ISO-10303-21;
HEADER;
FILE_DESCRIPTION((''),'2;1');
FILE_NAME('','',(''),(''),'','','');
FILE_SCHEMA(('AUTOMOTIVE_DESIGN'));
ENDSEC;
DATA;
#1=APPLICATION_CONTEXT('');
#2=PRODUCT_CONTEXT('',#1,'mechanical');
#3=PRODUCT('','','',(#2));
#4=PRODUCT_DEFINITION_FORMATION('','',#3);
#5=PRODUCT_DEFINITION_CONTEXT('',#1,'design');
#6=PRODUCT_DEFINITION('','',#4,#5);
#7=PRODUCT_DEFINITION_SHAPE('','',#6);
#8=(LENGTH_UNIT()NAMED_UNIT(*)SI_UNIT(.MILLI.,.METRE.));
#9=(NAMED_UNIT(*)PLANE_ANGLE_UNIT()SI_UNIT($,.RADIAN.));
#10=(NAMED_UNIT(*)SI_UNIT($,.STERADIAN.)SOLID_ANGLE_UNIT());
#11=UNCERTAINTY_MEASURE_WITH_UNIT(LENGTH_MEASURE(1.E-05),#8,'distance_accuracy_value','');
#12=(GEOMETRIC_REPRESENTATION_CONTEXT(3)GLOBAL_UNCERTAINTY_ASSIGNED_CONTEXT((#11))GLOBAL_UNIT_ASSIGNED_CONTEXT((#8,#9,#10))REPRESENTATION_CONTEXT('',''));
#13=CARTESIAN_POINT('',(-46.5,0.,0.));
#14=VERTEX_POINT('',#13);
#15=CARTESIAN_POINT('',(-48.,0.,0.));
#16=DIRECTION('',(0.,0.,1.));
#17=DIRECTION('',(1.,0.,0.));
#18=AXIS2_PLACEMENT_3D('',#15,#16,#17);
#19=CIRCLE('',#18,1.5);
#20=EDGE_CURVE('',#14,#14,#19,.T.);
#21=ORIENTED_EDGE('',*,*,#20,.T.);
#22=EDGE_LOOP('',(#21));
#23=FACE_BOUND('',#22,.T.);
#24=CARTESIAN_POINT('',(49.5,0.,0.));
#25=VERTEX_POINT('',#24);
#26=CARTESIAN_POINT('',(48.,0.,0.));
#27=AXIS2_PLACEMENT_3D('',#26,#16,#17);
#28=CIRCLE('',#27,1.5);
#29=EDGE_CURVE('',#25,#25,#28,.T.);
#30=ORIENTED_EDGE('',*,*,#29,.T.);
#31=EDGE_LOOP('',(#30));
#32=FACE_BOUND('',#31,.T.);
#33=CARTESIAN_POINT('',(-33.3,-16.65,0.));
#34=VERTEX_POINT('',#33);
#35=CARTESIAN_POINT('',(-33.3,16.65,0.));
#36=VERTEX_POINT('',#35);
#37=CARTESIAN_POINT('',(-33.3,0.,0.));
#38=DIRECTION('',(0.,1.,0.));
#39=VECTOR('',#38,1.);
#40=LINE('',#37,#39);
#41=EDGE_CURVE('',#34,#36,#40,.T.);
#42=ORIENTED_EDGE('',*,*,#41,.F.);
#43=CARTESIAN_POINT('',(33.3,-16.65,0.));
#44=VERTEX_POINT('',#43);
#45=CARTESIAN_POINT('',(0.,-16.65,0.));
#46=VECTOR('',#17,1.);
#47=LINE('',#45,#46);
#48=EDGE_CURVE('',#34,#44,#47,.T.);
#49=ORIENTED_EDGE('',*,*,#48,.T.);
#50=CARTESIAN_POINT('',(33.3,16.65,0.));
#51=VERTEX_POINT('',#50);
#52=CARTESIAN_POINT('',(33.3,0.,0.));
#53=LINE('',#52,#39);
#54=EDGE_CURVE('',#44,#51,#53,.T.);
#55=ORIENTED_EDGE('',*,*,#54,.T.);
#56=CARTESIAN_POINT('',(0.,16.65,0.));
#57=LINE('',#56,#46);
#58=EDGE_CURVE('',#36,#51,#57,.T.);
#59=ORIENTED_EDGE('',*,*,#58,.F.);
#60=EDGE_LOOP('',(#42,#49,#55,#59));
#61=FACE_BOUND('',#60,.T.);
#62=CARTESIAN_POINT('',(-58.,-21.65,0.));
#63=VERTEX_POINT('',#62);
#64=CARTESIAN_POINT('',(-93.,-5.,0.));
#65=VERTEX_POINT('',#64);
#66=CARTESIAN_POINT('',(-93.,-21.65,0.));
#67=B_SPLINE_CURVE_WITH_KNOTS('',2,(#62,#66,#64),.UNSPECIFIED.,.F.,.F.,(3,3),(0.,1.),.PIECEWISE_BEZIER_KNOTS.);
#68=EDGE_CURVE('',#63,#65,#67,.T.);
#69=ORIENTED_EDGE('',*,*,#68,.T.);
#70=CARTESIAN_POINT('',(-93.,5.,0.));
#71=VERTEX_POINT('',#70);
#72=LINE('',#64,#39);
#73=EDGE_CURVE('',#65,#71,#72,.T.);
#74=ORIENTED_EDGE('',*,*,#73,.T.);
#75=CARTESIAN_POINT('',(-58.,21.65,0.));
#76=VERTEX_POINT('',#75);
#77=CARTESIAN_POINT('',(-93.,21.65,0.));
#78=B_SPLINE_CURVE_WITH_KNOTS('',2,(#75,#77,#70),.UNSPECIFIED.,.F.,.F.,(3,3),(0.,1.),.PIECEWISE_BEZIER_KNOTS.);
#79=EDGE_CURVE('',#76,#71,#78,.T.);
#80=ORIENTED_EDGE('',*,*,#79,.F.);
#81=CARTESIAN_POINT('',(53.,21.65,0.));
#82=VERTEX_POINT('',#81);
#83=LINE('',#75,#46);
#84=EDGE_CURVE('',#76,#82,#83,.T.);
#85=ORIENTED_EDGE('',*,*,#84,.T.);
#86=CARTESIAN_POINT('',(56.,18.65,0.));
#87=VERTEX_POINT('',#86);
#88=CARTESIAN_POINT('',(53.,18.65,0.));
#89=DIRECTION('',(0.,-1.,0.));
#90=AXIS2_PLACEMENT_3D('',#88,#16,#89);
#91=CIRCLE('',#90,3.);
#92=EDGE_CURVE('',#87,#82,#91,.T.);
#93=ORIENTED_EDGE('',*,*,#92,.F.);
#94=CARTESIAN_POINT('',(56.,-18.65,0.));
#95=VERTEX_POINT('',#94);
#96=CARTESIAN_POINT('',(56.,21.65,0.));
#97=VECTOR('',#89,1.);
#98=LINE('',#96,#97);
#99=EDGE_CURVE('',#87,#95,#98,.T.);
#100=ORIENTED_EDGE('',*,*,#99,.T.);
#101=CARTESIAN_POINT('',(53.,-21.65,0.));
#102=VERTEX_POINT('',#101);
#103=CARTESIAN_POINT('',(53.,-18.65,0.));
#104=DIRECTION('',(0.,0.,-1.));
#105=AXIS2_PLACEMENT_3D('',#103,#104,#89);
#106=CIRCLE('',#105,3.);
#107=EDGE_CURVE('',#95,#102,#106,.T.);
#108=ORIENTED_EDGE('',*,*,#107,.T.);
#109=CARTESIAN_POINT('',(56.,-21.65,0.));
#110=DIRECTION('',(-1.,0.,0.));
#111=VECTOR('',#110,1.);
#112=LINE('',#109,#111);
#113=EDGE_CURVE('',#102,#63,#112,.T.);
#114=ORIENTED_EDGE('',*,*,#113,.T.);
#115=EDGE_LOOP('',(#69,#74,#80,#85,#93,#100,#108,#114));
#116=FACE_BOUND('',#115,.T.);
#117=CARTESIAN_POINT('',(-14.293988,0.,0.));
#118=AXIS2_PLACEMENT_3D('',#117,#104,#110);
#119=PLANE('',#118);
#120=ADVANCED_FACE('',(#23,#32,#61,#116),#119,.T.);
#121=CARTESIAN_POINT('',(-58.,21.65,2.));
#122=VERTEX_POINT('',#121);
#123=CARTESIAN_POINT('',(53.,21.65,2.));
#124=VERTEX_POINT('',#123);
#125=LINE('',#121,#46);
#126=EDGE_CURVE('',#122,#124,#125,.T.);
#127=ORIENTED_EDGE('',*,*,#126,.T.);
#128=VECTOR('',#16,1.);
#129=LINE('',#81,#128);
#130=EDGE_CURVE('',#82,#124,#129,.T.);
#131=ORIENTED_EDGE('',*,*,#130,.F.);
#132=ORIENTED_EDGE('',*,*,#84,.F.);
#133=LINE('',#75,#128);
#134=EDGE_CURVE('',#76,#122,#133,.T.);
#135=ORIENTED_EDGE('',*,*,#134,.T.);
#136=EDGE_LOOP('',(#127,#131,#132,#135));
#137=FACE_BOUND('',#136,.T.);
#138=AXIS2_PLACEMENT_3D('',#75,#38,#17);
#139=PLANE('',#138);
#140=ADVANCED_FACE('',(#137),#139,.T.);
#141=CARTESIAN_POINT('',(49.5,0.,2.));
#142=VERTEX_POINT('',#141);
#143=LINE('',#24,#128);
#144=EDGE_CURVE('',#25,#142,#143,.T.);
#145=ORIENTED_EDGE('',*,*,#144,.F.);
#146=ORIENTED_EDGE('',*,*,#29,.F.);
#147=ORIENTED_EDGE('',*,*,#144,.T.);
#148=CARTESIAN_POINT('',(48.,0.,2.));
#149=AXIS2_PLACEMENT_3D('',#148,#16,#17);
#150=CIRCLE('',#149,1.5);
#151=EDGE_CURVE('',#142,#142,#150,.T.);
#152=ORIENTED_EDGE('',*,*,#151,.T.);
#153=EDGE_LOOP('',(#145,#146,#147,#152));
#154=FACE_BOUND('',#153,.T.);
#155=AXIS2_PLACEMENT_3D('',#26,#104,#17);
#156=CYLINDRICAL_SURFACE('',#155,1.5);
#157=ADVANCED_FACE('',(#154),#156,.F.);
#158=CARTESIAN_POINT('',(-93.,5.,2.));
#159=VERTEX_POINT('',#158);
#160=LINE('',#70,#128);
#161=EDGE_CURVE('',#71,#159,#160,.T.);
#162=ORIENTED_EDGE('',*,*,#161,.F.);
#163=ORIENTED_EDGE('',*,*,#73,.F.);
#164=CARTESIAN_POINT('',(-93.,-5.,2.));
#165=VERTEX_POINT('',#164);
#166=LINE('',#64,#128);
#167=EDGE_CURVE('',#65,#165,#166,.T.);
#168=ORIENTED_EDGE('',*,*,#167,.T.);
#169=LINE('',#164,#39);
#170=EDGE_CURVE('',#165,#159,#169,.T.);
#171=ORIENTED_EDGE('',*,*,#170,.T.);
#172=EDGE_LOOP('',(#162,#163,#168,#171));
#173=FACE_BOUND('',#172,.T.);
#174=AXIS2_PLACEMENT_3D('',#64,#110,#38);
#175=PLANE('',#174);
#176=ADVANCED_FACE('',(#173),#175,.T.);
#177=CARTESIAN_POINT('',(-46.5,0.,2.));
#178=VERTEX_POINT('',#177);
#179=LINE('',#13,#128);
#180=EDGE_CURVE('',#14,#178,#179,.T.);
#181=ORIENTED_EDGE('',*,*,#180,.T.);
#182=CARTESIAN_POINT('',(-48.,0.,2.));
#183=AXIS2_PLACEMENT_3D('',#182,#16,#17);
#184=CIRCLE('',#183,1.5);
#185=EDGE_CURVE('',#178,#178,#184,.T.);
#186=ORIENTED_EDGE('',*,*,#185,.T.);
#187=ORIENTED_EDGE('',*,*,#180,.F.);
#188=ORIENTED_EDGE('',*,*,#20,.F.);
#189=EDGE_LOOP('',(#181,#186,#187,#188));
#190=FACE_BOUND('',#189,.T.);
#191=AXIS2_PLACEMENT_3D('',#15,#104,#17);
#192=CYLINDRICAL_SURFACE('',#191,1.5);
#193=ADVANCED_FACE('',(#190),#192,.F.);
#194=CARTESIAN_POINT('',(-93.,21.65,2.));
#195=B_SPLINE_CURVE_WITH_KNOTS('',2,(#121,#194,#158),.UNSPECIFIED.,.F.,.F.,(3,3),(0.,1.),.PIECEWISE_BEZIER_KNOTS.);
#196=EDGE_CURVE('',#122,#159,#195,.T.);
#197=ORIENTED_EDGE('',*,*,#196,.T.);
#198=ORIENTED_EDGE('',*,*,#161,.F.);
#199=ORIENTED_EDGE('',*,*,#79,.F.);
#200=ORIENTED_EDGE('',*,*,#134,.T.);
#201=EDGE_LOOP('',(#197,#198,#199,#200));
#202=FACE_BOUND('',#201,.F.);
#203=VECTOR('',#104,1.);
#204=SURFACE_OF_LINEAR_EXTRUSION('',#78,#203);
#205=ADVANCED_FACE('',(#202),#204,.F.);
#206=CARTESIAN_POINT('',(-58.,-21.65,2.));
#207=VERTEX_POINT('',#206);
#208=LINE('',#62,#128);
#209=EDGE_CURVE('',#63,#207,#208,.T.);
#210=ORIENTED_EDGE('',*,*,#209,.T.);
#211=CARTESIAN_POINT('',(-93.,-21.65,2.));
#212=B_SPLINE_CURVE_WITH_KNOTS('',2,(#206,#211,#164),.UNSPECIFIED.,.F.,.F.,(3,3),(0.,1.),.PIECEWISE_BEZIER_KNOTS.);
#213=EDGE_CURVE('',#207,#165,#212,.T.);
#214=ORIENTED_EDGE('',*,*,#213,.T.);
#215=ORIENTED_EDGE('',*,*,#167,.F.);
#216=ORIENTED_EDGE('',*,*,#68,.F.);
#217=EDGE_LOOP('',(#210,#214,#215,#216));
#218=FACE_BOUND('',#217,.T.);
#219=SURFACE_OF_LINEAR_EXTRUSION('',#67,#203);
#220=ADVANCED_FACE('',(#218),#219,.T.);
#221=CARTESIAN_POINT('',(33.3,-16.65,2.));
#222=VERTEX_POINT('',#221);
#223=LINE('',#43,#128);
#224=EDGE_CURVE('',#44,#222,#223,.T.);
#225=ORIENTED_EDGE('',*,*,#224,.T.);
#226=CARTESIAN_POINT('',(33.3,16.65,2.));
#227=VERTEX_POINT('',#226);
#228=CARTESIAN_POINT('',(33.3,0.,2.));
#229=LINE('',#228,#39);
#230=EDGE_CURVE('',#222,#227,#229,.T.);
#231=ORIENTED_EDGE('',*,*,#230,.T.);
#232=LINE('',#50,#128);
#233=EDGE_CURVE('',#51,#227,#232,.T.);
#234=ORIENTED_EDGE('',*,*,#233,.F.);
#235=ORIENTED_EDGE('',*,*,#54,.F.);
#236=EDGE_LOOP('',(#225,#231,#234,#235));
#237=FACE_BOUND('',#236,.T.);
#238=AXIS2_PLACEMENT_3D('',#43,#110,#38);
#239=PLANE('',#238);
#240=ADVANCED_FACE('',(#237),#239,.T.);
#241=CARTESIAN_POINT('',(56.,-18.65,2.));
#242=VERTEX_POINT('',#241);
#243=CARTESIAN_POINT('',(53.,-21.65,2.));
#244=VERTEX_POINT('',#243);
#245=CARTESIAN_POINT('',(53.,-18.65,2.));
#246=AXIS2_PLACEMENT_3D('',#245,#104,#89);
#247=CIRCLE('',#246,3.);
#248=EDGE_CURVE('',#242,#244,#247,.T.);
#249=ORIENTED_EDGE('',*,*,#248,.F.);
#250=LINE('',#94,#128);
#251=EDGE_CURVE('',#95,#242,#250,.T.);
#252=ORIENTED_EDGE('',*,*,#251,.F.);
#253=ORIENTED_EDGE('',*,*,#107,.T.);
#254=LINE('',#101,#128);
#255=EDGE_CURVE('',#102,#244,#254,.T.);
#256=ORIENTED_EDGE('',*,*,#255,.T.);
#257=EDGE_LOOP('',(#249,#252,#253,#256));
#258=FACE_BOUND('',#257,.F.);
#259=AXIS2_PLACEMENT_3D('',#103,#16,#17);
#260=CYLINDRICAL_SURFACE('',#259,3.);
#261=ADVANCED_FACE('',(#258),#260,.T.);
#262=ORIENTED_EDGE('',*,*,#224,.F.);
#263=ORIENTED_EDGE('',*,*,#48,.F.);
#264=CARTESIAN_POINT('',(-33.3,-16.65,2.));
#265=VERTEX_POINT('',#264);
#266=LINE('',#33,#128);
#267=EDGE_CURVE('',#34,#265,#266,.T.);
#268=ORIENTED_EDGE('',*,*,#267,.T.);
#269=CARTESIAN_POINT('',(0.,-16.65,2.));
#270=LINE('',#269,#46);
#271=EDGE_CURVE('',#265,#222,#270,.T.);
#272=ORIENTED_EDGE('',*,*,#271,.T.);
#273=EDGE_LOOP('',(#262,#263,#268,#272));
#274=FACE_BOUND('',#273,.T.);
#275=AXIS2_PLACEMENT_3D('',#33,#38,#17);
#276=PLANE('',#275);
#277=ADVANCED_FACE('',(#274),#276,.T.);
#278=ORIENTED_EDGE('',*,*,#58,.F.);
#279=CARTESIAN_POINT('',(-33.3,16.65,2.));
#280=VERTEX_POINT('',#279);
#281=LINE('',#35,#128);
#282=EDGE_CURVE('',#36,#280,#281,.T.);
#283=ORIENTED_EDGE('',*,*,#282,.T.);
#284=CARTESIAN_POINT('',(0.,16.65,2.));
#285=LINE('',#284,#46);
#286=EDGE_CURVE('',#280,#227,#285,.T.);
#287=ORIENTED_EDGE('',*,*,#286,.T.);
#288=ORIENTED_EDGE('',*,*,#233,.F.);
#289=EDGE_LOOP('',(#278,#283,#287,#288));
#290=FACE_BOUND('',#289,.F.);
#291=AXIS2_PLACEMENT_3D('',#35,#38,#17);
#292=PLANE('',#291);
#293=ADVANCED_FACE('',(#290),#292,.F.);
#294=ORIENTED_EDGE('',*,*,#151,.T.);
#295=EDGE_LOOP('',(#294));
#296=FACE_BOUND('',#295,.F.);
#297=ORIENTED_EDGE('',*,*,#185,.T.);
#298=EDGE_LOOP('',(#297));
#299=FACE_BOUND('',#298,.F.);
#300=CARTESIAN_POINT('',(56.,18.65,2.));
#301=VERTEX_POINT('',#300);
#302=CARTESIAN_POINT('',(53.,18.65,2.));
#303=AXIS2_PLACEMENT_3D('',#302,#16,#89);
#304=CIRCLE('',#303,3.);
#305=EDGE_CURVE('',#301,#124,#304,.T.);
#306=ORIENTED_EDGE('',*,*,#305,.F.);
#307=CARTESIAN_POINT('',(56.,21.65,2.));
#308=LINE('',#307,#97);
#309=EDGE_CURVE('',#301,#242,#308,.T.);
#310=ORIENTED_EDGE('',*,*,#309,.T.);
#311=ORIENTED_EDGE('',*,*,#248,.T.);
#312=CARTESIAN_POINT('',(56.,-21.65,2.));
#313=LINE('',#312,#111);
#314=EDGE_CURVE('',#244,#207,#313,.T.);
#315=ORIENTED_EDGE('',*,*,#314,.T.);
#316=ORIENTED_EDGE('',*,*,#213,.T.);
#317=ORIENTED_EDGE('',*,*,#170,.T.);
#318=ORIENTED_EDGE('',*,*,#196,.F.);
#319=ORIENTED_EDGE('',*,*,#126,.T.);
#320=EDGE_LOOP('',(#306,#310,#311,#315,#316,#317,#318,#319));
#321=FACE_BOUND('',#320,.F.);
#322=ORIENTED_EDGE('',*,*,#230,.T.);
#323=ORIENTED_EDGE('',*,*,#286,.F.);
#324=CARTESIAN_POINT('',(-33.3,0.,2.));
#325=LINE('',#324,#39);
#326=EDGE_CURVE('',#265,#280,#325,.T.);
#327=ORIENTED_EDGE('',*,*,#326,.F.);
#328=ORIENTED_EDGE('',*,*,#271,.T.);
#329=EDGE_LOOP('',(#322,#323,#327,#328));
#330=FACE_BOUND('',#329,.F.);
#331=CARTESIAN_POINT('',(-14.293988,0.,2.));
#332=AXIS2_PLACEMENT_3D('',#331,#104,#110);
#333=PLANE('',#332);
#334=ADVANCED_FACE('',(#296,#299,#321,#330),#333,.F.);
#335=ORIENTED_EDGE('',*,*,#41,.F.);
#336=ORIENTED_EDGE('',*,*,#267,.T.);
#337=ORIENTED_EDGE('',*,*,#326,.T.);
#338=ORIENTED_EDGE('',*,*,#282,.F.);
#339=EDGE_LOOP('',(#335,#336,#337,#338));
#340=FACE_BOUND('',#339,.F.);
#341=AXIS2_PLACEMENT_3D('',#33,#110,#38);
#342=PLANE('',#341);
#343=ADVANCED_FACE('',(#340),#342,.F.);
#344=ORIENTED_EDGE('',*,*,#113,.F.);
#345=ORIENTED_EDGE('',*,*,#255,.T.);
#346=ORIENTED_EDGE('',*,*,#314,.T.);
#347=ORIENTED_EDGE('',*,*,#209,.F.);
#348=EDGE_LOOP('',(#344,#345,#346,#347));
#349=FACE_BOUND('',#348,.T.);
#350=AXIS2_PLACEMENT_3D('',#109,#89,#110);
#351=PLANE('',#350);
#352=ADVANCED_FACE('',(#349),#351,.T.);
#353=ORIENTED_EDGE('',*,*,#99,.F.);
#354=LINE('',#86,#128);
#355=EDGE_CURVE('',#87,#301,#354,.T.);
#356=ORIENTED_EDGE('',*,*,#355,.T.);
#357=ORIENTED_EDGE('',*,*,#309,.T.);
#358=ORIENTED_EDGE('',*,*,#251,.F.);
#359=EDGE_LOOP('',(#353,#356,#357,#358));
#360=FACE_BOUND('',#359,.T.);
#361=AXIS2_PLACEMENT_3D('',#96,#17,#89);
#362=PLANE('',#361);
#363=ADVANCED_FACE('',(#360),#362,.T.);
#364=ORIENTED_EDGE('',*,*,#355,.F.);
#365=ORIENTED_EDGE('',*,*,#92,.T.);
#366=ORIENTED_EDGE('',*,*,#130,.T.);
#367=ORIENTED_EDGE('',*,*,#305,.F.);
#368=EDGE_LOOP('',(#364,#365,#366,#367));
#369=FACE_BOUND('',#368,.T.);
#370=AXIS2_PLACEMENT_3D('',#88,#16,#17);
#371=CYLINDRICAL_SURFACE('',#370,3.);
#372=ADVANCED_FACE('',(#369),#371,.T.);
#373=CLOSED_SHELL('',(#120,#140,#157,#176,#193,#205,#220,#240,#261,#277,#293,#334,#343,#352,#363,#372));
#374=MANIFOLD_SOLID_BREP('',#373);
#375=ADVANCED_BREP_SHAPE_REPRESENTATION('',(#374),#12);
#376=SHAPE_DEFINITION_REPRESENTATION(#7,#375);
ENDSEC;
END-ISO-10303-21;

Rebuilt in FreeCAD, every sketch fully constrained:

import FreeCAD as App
import Part
import Sketcher

V = App.Vector
Q = App.Units.Quantity


def edges_at(feature, points):
    """Names of the edges that pass closest to the given points."""
    edges = feature.Shape.Edges
    near = lambda p: min(range(len(edges)), key=lambda i: edges[i].distToShape(Part.Vertex(*p))[0])
    return sorted({f"Edge{near(p) + 1}" for p in points})


def add_polygon(sketch, points):
    """Adds a closed chain of lines whose ends are joined by coincident constraints."""
    first, n = sketch.GeometryCount, len(points)
    for a, b in zip(points, points[1:] + points[:1]):
        sketch.addGeometry(Part.LineSegment(App.Vector(*a, 0), App.Vector(*b, 0)), False)
    for i in range(n):
        sketch.addConstraint(Sketcher.Constraint("Coincident", first + i, 2, first + (i + 1) % n, 1))

doc = App.newDocument("Part")
body = doc.addObject("PartDesign::Body", "Body")

sketch1 = body.newObject("Sketcher::SketchObject", "Sketch")
sketch1.AttachmentSupport = (doc.getObject("XY_Plane"), [""])
sketch1.MapMode = "FlatFace"
sketch1.addGeometry(Part.LineSegment(V(56, 21.65, 0), V(-58, 21.65, 0)), False)
sketch1.addGeometry(Part.BSplineCurve([V(-58, 21.65, 0), V(-93, 21.65, 0), V(-93, 5, 0)], [3, 3], [0, 1], False, 2, [1, 1, 1], False), False)
sketch1.addGeometry(Part.LineSegment(V(-93, 5, 0), V(-93, -5, 0)), False)
sketch1.addGeometry(Part.BSplineCurve([V(-58, -21.65, 0), V(-93, -21.65, 0), V(-93, -5, 0)], [3, 3], [0, 1], False, 2, [1, 1, 1], False), False)
sketch1.addGeometry(Part.LineSegment(V(-58, -21.65, 0), V(56, -21.65, 0)), False)
sketch1.addGeometry(Part.LineSegment(V(56, -21.65, 0), V(56, 21.65, 0)), False)
sketch1.addGeometry(Part.Circle(V(48, 0, 0), V(0, 0, 1), 1.5), False)
add_polygon(sketch1, [(-33.3, -16.65), (-33.3, 16.65), (33.3, 16.65), (33.3, -16.65)])
sketch1.addGeometry(Part.Circle(V(-48, 0, 0), V(0, 0, 1), 1.5), False)
sketch1.addConstraint(Sketcher.Constraint("Block", 1))
sketch1.addConstraint(Sketcher.Constraint("Block", 3))
sketch1.addConstraint(Sketcher.Constraint("Coincident", 0, 2, 1, 1))
sketch1.addConstraint(Sketcher.Constraint("Coincident", 1, 2, 2, 1))
sketch1.addConstraint(Sketcher.Constraint("Coincident", 2, 2, 3, 2))
sketch1.addConstraint(Sketcher.Constraint("Coincident", 3, 1, 4, 1))
sketch1.addConstraint(Sketcher.Constraint("Coincident", 4, 2, 5, 1))
sketch1.addConstraint(Sketcher.Constraint("Coincident", 5, 2, 0, 1))
sketch1.addConstraint(Sketcher.Constraint("Horizontal", 0))
sketch1.addConstraint(Sketcher.Constraint("Horizontal", 4))
sketch1.addConstraint(Sketcher.Constraint("Vertical", 5))
sketch1.addConstraint(Sketcher.Constraint("Vertical", 7))
sketch1.addConstraint(Sketcher.Constraint("Horizontal", 8))
sketch1.addConstraint(Sketcher.Constraint("Vertical", 9))
sketch1.addConstraint(Sketcher.Constraint("Horizontal", 10))
sketch1.addConstraint(Sketcher.Constraint("Equal", 6, 11))
sketch1.addConstraint(Sketcher.Constraint("Symmetric", 6, 3, 11, 3, -1, 1))
sketch1.addConstraint(Sketcher.Constraint("Symmetric", 7, 2, 9, 2, -1, 1))
sketch1.addConstraint(Sketcher.Constraint("PointOnObject", 6, 3, -1))
sketch1.addConstraint(Sketcher.Constraint("Diameter", 6, Q("3 mm")))
sketch1.addConstraint(Sketcher.Constraint("DistanceX", 0, 2, 0, 1, Q("114 mm")))
sketch1.addConstraint(Sketcher.Constraint("DistanceX", 8, 1, 8, 2, Q("66.6 mm")))
sketch1.addConstraint(Sketcher.Constraint("DistanceY", 7, 1, 7, 2, Q("33.3 mm")))
sketch1.addConstraint(Sketcher.Constraint("DistanceX", -1, 1, 6, 3, Q("48 mm")))
pad1 = body.newObject("PartDesign::Pad", "Pad")
pad1.Profile = sketch1
pad1.Length = 2
doc.recompute()

fillet = body.newObject("PartDesign::Fillet", "Fillet")
fillet.Base = (pad1, edges_at(pad1, [(56, -21.65, 1)]))
fillet.Radius = 3
doc.recompute()

fillet2 = body.newObject("PartDesign::Fillet", "Fillet001")
fillet2.Base = (fillet, edges_at(fillet, [(56, 21.65, 1)]))
fillet2.Radius = 3

doc.recompute()
